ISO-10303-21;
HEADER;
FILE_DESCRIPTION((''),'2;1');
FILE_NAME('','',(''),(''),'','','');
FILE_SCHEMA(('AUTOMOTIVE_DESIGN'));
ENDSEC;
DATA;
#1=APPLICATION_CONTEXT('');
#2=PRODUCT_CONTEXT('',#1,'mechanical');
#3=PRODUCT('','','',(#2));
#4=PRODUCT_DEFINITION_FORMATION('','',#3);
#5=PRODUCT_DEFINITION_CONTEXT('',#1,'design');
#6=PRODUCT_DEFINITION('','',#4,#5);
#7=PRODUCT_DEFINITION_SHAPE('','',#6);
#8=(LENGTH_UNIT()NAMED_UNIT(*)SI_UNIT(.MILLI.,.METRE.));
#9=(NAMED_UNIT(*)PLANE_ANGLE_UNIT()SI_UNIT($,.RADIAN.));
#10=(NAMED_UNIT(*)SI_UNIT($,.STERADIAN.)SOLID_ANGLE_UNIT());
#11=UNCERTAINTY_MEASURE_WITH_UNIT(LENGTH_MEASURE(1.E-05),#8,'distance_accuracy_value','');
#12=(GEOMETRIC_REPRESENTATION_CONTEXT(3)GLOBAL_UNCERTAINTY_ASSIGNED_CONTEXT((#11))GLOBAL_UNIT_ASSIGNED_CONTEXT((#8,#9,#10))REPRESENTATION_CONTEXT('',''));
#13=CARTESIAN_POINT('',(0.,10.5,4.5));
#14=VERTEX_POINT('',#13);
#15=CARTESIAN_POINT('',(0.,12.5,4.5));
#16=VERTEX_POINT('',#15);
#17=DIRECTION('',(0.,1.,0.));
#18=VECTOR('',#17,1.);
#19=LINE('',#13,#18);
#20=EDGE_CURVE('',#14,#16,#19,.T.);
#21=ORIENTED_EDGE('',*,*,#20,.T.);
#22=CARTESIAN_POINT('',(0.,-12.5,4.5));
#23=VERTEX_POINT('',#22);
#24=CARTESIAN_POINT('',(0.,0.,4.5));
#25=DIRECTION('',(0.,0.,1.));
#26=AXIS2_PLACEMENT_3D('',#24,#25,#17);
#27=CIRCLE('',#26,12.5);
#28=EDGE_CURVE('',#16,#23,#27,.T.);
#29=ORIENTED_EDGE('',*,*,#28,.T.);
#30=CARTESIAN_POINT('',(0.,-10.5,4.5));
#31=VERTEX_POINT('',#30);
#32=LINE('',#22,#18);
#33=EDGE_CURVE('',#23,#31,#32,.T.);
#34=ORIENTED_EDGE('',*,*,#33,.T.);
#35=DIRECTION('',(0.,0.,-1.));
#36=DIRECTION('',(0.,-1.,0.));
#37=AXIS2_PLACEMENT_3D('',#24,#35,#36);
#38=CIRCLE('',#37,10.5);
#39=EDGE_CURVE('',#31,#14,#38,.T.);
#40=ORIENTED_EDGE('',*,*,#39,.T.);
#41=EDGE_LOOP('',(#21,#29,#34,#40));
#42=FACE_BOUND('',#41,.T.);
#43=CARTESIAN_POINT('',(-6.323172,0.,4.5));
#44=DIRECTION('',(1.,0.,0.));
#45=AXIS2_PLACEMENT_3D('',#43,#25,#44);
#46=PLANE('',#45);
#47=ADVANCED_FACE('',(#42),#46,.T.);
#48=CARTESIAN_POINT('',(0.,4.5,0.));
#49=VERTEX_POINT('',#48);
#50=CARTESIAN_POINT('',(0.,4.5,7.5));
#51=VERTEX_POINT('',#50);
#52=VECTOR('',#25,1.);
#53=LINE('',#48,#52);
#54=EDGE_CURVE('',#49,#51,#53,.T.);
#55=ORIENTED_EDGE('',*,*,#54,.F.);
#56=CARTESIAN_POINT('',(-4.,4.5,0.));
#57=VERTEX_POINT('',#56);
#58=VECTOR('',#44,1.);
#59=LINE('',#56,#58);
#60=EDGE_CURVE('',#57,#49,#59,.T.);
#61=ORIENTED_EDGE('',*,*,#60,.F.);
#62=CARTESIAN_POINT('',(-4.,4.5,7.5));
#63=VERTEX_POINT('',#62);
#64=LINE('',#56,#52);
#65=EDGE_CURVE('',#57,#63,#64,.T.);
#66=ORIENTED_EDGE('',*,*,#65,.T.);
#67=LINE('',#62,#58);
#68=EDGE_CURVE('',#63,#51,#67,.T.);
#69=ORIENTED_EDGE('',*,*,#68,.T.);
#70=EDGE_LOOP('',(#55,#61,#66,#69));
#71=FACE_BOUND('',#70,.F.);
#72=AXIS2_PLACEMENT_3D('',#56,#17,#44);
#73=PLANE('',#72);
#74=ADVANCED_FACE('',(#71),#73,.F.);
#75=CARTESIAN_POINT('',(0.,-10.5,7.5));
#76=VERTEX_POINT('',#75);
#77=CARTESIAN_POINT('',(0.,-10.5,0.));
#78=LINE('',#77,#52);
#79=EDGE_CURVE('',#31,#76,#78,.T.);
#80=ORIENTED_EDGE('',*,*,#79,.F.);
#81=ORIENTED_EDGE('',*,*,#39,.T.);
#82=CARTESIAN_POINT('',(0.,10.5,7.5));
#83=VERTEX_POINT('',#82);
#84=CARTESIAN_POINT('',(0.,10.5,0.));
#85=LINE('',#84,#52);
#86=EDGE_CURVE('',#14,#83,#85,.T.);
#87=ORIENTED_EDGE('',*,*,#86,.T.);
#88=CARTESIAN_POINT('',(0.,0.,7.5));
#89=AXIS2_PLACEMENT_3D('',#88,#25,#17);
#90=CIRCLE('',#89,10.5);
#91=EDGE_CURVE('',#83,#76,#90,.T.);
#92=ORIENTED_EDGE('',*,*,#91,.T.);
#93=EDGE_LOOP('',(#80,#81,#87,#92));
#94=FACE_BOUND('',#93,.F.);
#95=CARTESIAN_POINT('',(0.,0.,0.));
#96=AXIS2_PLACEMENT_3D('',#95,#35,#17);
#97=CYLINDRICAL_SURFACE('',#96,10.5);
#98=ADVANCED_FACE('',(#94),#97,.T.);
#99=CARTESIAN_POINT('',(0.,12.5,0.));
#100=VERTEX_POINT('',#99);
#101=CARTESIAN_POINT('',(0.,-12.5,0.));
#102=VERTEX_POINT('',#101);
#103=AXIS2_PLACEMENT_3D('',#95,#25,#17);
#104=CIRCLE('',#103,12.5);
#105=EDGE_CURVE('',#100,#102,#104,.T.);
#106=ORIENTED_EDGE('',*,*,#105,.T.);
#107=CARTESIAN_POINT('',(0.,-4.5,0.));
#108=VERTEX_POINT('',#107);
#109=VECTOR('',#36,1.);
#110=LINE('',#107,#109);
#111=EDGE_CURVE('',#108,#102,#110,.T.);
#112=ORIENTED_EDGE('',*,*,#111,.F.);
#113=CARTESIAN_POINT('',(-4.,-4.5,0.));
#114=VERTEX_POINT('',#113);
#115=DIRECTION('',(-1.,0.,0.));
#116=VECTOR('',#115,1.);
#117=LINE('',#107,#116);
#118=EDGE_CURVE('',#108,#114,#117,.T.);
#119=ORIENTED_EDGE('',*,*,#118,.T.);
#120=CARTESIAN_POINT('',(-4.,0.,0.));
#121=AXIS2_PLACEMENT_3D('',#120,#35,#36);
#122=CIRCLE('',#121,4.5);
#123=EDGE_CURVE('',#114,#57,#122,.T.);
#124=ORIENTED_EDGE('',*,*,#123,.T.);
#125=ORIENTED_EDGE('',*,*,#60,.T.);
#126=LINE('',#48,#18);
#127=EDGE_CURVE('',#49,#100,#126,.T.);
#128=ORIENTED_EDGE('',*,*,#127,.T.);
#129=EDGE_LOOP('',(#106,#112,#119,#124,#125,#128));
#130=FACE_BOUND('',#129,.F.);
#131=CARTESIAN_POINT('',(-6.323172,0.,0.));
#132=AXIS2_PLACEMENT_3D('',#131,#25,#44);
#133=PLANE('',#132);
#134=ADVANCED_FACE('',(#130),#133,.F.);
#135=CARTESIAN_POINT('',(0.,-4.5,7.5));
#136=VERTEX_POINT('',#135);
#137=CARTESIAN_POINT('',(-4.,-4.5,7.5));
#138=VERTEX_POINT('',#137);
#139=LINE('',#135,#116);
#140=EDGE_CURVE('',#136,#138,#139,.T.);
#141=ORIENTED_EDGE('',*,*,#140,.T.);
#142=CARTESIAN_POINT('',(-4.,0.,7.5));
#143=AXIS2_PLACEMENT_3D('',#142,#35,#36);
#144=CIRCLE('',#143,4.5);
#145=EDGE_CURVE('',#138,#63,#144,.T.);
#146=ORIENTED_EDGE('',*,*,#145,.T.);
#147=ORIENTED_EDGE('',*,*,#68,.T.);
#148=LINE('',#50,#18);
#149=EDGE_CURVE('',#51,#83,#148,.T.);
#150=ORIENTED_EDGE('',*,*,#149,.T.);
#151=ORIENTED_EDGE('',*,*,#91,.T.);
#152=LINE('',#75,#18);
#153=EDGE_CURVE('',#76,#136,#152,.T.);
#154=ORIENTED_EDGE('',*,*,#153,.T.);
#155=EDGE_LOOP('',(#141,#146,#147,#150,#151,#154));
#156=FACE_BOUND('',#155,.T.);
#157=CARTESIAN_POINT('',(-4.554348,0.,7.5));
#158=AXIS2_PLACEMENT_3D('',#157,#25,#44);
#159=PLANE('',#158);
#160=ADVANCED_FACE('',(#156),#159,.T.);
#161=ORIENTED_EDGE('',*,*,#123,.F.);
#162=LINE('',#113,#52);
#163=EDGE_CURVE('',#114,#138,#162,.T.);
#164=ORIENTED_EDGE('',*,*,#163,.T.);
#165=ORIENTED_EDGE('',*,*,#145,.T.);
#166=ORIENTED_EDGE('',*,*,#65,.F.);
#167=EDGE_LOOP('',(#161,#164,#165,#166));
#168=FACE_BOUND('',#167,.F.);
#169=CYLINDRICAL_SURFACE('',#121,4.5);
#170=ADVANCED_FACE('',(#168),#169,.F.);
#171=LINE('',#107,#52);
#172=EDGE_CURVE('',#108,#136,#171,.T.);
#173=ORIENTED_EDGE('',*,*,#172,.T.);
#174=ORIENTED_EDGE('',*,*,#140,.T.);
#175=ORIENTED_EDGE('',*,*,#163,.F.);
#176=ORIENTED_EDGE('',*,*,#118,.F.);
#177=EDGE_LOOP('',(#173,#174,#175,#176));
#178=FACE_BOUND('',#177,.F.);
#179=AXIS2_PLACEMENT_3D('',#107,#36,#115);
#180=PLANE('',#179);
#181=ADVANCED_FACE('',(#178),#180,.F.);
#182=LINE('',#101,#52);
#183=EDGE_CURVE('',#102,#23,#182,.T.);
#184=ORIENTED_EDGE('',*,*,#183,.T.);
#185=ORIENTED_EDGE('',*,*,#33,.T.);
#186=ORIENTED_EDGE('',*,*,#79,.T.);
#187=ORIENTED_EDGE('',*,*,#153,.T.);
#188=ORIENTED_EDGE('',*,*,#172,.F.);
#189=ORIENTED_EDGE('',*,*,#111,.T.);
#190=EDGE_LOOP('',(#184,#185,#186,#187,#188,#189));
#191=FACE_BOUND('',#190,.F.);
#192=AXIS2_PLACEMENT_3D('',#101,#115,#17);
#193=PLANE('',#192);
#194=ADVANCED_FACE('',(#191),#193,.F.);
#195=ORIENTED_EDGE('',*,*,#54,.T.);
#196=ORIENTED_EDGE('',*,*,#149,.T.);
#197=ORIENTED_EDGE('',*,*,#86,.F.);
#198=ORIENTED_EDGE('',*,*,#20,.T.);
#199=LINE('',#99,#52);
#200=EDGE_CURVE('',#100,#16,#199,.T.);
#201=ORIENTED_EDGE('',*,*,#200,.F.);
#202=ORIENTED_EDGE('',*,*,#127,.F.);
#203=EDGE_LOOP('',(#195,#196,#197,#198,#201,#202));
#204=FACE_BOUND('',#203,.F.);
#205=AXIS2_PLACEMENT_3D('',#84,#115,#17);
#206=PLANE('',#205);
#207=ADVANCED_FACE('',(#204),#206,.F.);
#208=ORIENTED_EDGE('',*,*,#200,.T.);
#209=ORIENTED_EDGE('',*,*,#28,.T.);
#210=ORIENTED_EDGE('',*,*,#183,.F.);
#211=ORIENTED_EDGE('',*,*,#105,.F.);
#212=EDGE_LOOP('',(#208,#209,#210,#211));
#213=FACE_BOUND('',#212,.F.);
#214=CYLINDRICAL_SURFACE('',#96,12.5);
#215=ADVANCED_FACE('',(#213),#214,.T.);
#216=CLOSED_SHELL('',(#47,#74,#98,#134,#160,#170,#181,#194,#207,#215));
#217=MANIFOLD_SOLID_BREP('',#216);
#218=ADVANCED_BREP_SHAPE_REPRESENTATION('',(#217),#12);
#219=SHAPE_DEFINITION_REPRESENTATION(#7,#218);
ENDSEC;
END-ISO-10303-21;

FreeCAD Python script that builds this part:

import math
import FreeCAD as App
import Part
import Sketcher

V = App.Vector
Q = App.Units.Quantity

doc = App.newDocument("Part")
body = doc.addObject("PartDesign::Body", "Body")

# Sketch on XY plane
sketch1 = body.newObject("Sketcher::SketchObject", "Sketch")
sketch1.AttachmentSupport = (doc.getObject("XY_Plane"), [""])
sketch1.MapMode = "FlatFace"
sketch1.addGeometry([
    Part.LineSegment(V(0, 4.5, 0), V(0, 10.5, 0)),  # 0
    Part.ArcOfCircle(Part.Circle(V(0, 0, 0), V(0, 0, 1), 10.5), math.radians(90), math.radians(270)),  # 1
    Part.LineSegment(V(0, -10.5, 0), V(0, -4.5, 0)),  # 2
    Part.LineSegment(V(0, -4.5, 0), V(-4, -4.5, 0)),  # 3
    Part.ArcOfCircle(Part.Circle(V(-4, 0, 0), V(0, 0, 1), 4.5), math.radians(90), math.radians(270)),  # 4
    Part.LineSegment(V(-4, 4.5, 0), V(0, 4.5, 0)),  # 5
], False)
sketch1.addConstraint([
    Sketcher.Constraint("Coincident", 0, 2, 1, 1),
    Sketcher.Constraint("Coincident", 1, 2, 2, 1),
    Sketcher.Constraint("Coincident", 2, 2, 3, 1),
    Sketcher.Constraint("Tangent", 3, 2, 4, 2),
    Sketcher.Constraint("Tangent", 4, 1, 5, 1),
    Sketcher.Constraint("Coincident", 5, 2, 0, 1),
    Sketcher.Constraint("Vertical", 0),
    Sketcher.Constraint("Vertical", 2),
    Sketcher.Constraint("Horizontal", 3),
    Sketcher.Constraint("Horizontal", 5),
    Sketcher.Constraint("Coincident", 1, 3, -1, 1),
    Sketcher.Constraint("Symmetric", 2, 2, 5, 2, -1, 1),
    Sketcher.Constraint("PointOnObject", 0, 2, -2),
    Sketcher.Constraint("Radius", 1, Q("10.5 mm")),
    Sketcher.Constraint("Radius", 4, Q("4.5 mm")),
    Sketcher.Constraint("DistanceX", 3, 2, 3, 1, Q("4 mm")),
])
pad1 = body.newObject("PartDesign::Pad", "Pad")
pad1.Profile = sketch1
pad1.Length = 7.5

# Sketch on XY plane
sketch2 = body.newObject("Sketcher::SketchObject", "Sketch001")
sketch2.AttachmentSupport = (doc.getObject("XY_Plane"), [""])
sketch2.MapMode = "FlatFace"
sketch2.addGeometry([
    Part.ArcOfCircle(Part.Circle(V(0, 0, 0), V(0, 0, 1), 10.5), math.radians(90), math.radians(270)),
    Part.LineSegment(V(0, 10.5, 0), V(0, 12.5, 0)),
    Part.ArcOfCircle(Part.Circle(V(0, 0, 0), V(0, 0, 1), 12.5), math.radians(90), math.radians(270)),
    Part.LineSegment(V(0, -12.5, 0), V(0, -10.5, 0)),
], False)
sketch2.addConstraint([
    Sketcher.Constraint("Coincident", 0, 1, 1, 1),
    Sketcher.Constraint("Coincident", 1, 2, 2, 1),
    Sketcher.Constraint("Coincident", 2, 2, 3, 1),
    Sketcher.Constraint("Coincident", 3, 2, 0, 2),
    Sketcher.Constraint("Vertical", 1),
    Sketcher.Constraint("Vertical", 3),
    Sketcher.Constraint("Coincident", 0, 3, -1, 1),
    Sketcher.Constraint("Coincident", 2, 3, -1, 1),
    Sketcher.Constraint("PointOnObject", 0, 1, -2),
    Sketcher.Constraint("PointOnObject", 2, 2, -2),
    Sketcher.Constraint("Radius", 0, Q("10.5 mm")),
    Sketcher.Constraint("Radius", 2, Q("12.5 mm")),
])
pad2 = body.newObject("PartDesign::Pad", "Pad001")
pad2.Profile = sketch2
pad2.Length = 4.5

doc.recompute()
